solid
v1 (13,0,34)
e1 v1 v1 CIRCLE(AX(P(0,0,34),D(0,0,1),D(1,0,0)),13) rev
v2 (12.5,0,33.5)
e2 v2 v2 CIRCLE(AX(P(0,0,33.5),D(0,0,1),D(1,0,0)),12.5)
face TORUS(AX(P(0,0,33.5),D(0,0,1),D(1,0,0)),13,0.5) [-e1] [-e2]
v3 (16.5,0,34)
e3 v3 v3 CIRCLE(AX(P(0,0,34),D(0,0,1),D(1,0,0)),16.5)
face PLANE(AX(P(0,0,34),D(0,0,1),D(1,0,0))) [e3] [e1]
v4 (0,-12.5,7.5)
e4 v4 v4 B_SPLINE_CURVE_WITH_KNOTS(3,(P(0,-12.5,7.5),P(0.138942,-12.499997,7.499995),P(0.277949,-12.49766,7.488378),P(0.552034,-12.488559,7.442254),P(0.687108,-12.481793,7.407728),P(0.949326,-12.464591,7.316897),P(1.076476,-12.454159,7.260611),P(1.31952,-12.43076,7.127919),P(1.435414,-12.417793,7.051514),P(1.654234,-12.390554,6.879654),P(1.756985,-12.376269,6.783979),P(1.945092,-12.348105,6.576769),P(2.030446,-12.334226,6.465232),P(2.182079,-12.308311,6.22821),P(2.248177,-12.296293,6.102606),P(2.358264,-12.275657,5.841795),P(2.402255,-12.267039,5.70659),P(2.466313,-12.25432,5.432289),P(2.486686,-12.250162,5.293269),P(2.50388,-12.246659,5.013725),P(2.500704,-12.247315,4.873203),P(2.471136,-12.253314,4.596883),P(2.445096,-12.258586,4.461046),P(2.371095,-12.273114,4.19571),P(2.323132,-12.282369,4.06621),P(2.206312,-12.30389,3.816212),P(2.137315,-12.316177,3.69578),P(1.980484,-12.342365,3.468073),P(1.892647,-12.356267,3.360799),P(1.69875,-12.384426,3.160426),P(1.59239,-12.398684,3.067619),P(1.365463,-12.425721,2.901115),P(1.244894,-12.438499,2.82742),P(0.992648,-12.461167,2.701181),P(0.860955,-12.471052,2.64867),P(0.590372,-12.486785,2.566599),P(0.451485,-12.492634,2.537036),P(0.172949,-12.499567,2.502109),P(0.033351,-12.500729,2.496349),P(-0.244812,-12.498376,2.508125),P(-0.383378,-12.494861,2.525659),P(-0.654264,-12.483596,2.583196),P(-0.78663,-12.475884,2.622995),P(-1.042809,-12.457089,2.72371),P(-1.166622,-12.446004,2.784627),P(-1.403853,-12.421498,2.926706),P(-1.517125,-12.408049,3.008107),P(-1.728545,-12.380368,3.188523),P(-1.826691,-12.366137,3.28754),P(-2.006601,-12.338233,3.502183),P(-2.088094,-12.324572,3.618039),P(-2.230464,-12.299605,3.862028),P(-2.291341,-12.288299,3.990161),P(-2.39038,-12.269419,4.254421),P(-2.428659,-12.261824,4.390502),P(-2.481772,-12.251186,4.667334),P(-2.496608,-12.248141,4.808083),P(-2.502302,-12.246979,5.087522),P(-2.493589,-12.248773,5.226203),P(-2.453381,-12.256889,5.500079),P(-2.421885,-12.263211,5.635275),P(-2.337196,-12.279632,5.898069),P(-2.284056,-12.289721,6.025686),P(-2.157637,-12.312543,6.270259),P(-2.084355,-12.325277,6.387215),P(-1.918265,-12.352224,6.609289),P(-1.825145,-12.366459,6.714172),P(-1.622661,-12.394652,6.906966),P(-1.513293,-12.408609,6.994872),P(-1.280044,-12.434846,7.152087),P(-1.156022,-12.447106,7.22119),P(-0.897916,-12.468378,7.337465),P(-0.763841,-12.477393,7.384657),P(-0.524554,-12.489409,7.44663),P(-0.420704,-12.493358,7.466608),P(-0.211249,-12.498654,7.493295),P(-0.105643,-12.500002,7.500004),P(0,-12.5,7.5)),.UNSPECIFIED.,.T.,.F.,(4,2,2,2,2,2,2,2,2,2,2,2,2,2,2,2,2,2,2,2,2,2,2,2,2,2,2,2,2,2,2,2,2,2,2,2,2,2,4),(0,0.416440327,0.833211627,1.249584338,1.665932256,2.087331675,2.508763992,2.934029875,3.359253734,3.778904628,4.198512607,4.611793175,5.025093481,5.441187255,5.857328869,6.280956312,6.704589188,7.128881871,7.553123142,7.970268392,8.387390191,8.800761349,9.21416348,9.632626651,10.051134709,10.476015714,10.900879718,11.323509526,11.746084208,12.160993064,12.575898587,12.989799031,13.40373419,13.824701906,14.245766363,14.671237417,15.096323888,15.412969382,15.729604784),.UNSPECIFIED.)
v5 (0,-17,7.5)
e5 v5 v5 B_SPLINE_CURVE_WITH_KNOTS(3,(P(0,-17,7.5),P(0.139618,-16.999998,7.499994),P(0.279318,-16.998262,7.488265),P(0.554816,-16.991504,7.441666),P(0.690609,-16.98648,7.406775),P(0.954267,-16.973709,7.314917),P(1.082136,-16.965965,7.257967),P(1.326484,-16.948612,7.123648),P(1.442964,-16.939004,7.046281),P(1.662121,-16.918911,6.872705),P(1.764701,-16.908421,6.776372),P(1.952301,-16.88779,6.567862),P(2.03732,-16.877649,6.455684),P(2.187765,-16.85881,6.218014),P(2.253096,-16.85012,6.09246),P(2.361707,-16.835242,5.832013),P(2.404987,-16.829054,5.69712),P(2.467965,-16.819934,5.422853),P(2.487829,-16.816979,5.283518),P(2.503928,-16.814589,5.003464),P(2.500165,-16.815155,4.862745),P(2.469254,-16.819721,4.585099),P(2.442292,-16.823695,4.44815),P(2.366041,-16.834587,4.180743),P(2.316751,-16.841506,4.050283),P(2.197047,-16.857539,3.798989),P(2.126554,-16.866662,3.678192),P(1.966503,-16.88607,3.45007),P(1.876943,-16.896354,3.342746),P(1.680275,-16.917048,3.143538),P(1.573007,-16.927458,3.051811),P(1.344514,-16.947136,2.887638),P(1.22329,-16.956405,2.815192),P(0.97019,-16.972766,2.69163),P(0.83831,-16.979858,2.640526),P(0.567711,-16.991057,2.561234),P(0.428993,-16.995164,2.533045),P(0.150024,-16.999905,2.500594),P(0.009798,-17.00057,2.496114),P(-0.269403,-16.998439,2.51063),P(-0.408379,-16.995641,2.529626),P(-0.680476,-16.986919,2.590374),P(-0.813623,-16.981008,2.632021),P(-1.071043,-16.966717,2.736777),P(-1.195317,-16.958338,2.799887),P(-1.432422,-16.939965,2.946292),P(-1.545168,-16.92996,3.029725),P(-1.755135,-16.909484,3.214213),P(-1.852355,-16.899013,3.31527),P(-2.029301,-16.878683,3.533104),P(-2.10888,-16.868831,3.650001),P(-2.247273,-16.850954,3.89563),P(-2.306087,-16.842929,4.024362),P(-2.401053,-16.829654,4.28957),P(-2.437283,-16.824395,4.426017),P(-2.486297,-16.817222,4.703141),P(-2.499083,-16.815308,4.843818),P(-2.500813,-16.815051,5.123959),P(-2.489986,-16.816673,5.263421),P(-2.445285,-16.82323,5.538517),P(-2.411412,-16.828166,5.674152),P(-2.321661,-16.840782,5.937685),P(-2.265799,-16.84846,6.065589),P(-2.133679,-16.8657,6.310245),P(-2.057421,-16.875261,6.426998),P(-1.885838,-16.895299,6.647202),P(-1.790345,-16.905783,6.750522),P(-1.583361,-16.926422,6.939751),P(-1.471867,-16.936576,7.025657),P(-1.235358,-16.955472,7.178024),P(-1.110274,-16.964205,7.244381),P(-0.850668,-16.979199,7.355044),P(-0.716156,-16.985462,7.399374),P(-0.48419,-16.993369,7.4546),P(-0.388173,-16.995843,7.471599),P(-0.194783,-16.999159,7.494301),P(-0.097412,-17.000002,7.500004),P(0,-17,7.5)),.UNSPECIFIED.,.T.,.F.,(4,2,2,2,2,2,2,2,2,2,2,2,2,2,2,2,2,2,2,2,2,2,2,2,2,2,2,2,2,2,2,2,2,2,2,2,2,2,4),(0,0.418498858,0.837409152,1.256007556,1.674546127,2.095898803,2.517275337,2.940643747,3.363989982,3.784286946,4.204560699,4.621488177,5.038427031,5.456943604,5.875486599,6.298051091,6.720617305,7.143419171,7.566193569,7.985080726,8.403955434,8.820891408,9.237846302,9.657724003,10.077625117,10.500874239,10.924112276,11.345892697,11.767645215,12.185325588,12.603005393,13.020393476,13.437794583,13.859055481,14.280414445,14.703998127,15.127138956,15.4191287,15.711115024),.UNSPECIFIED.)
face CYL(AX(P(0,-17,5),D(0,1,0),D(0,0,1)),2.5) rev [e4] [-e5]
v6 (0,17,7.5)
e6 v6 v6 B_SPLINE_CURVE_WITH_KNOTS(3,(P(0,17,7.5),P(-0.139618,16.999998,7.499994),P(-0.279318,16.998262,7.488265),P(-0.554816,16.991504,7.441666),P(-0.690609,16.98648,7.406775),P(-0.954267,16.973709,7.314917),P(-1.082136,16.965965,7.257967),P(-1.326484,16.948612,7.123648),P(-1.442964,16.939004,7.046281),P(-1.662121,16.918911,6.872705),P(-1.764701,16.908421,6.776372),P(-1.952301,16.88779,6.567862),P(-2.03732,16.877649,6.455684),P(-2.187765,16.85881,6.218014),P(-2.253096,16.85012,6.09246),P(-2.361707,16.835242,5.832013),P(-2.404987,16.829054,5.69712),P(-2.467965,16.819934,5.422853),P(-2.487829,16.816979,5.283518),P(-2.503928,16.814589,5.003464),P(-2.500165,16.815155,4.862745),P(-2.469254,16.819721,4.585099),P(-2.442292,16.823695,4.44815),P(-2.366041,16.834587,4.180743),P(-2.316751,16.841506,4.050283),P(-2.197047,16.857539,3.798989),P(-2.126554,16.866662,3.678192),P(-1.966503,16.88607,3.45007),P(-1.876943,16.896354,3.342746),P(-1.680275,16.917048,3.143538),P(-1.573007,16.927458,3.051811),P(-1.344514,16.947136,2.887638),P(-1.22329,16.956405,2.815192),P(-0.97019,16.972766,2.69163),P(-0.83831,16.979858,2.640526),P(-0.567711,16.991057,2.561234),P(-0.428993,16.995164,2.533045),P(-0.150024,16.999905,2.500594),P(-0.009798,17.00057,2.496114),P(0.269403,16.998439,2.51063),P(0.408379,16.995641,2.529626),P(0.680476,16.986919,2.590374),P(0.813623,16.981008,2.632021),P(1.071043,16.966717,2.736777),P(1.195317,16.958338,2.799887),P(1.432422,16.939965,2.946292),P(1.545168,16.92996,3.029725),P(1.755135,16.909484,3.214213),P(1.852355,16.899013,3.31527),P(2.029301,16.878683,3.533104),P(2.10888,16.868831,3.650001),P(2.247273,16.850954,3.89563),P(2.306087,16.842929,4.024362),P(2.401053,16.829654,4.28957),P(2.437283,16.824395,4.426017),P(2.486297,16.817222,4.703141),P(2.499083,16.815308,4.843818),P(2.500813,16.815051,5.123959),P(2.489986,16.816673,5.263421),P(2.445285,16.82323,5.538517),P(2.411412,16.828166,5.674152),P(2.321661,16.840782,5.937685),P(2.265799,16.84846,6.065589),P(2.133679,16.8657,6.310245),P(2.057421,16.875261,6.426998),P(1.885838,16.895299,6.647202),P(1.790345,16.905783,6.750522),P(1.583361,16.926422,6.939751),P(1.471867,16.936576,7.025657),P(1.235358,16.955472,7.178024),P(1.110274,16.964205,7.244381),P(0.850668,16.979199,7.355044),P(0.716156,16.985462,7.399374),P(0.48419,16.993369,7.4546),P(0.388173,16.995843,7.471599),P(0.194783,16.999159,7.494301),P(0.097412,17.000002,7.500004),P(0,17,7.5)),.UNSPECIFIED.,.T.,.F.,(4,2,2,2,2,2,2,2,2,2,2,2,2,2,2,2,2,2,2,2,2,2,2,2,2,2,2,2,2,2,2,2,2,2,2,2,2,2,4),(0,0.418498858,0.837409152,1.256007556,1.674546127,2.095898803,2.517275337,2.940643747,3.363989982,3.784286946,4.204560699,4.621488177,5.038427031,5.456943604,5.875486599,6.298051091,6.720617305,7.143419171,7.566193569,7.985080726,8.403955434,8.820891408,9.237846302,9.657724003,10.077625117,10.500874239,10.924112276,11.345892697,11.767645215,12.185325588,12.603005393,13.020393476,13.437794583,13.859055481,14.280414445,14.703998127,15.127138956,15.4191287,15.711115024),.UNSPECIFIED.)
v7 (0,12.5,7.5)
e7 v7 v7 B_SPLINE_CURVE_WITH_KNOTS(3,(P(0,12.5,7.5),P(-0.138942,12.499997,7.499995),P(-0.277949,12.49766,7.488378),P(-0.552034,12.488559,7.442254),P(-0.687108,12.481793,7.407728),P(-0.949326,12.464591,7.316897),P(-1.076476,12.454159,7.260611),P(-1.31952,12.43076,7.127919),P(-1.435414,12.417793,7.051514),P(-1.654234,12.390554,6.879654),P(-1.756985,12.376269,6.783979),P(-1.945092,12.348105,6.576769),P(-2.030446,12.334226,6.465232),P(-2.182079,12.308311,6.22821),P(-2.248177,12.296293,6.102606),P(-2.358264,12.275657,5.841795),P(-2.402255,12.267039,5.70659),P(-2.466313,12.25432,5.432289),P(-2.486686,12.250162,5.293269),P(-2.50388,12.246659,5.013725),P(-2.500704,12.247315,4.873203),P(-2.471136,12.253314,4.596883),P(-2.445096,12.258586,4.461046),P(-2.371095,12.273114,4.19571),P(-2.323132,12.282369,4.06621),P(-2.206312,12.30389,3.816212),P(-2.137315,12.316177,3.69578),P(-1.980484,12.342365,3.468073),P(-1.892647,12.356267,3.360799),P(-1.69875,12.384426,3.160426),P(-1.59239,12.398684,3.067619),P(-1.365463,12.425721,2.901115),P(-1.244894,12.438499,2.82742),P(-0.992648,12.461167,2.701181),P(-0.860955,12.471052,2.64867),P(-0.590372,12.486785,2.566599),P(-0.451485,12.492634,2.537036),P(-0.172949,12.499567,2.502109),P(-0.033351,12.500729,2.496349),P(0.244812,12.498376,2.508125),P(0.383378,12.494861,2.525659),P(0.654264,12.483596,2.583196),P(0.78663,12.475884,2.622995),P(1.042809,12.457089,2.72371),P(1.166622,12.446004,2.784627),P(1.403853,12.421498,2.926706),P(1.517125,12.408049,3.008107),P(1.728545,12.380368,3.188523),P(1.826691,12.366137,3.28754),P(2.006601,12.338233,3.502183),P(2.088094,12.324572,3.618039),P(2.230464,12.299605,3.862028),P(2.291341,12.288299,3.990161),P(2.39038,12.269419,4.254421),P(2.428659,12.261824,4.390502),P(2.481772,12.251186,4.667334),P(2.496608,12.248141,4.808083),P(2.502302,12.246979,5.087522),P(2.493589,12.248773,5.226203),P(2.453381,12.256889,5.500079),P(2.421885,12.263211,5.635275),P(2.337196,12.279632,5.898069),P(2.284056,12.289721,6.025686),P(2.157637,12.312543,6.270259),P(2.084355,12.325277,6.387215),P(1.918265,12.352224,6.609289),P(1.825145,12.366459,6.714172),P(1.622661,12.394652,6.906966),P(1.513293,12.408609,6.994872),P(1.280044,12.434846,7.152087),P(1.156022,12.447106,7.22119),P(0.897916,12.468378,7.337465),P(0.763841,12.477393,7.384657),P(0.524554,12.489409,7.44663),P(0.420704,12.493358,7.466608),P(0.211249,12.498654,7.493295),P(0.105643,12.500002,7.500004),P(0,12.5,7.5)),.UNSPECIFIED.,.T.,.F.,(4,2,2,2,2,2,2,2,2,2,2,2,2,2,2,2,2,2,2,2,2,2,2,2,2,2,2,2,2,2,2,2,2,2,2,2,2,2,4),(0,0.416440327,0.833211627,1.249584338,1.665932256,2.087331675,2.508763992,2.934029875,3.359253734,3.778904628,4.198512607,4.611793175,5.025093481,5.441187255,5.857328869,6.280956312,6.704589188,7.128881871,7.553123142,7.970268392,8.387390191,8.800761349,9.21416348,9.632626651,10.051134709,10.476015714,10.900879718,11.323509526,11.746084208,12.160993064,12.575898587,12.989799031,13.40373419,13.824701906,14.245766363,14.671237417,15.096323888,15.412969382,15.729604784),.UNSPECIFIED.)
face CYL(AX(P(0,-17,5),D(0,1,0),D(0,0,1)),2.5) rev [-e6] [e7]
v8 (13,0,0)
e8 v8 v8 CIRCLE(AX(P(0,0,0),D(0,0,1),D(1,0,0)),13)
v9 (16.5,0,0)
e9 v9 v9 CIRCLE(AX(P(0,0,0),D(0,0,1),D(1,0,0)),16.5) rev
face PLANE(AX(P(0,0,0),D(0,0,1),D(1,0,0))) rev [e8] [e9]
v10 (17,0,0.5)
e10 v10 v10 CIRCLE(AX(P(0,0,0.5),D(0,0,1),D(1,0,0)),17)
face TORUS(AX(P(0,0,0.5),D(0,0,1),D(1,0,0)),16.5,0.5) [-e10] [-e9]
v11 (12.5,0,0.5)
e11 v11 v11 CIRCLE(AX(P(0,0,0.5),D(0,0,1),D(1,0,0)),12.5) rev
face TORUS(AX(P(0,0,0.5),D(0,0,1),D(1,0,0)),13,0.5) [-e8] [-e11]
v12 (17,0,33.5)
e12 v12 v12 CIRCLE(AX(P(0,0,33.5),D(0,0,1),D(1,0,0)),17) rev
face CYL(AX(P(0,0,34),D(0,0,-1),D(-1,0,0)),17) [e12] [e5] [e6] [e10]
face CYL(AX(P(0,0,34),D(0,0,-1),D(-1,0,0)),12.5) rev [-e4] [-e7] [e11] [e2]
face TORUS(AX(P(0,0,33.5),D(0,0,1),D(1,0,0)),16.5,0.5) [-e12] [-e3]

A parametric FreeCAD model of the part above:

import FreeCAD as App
import Part
import Sketcher


def edges_at(feature, points):
    """Names of the edges that pass closest to the given points."""
    edges = feature.Shape.Edges
    near = lambda p: min(range(len(edges)), key=lambda i: edges[i].distToShape(Part.Vertex(*p))[0])
    return sorted({f"Edge{near(p) + 1}" for p in points})

doc = App.newDocument("Part")
body = doc.addObject("PartDesign::Body", "Body")

sketch1 = doc.addObject("Sketcher::SketchObject", "Sketch")
body.addObject(sketch1)
sketch1.AttachmentSupport = (doc.XY_Plane, [""])
sketch1.MapMode = "FlatFace"
sketch1.addGeometry(Part.Circle(App.Vector(0, 0, 0), App.Vector(0, 0, 1), 17), False)
sketch1.addGeometry(Part.Circle(App.Vector(0, 0, 0), App.Vector(0, 0, 1), 12.5), False)
sketch1.addConstraint(Sketcher.Constraint("Coincident", 0, 3, -1, 1))
sketch1.addConstraint(Sketcher.Constraint("Coincident", 1, 3, -1, 1))
sketch1.addConstraint(Sketcher.Constraint("Diameter", 0, 34.0))
sketch1.addConstraint(Sketcher.Constraint("Diameter", 1, 25.0))
pad1 = doc.addObject("PartDesign::Pad", "Pad")
body.addObject(pad1)
pad1.Profile = sketch1
pad1.Length = 34
doc.recompute()

fillet = doc.addObject("PartDesign::Fillet", "Fillet")
body.addObject(fillet)
fillet.Base = (pad1, edges_at(pad1, [
    (-17, 0, 0),
    (-17, 0, 34),
    (-12.5, 0, 0),
    (-12.5, 0, 34),
]))
fillet.Radius = 0.5

sketch2 = doc.addObject("Sketcher::SketchObject", "Sketch001")
body.addObject(sketch2)
sketch2.AttachmentSupport = (doc.XZ_Plane, [""])
sketch2.MapMode = "FlatFace"
sketch2.addGeometry(Part.Circle(App.Vector(0, 5, 0), App.Vector(0, 0, 1), 2.5), False)
sketch2.addConstraint(Sketcher.Constraint("PointOnObject", 0, 3, -2))
sketch2.addConstraint(Sketcher.Constraint("Diameter", 0, 5.0))
sketch2.addConstraint(Sketcher.Constraint("DistanceY", -1, 1, 0, 3, 5.0))
pocket1 = doc.addObject("PartDesign::Pocket", "Pocket")
body.addObject(pocket1)
pocket1.Profile = sketch2
pocket1.Type = "ThroughAll"
pocket1.Midplane = True

doc.recompute()
